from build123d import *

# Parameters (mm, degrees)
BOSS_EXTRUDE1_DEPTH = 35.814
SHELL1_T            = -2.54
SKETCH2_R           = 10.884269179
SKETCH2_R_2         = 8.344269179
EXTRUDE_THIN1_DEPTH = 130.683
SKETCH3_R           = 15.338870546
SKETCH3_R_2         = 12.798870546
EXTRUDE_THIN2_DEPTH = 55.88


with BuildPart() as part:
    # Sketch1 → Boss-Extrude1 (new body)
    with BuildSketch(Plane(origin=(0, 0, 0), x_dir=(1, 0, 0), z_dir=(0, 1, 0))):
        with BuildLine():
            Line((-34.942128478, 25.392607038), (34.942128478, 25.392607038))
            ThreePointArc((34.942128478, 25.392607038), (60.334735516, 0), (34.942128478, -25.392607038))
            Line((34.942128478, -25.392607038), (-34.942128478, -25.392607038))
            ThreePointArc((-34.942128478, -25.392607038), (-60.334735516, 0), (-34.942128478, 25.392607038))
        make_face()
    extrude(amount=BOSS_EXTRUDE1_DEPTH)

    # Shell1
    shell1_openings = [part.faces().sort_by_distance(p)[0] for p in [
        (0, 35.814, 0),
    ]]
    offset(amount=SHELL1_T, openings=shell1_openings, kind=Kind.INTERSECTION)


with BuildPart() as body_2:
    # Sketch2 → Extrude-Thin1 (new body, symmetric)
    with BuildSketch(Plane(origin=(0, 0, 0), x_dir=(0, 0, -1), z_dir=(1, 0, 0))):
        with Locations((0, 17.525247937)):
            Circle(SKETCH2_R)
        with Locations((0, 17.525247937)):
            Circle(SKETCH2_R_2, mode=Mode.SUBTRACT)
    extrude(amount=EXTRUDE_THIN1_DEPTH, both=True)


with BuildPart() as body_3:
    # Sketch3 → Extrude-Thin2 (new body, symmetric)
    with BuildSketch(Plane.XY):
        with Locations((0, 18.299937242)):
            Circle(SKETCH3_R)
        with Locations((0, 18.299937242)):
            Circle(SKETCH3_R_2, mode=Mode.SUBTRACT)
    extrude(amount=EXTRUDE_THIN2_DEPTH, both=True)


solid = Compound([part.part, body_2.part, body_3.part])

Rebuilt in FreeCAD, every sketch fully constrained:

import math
import FreeCAD as App
import Part
import Sketcher

V = App.Vector


def faces_at(feature, points):
    """Names of the faces that lie closest to the given points."""
    faces = feature.Shape.Faces
    near = lambda p: min(range(len(faces)), key=lambda i: faces[i].distToShape(Part.Vertex(*p))[0])
    return sorted({f"Face{near(p) + 1}" for p in points})

doc = App.newDocument("Part")
params = doc.addObject("Spreadsheet::Sheet", "Params")
for row, (alias, value) in enumerate([
    ("pad1_length", "1.41 in"),
    ("thickness_wall", "0.1 in"),
    ("pad2_length", "10.29 in"),
    ("pad3_length", "4.4 in"),
], start=1):
    params.set(f"A{row}", alias)
    params.set(f"B{row}", "=" + value)
    params.setAlias(f"B{row}", alias)

body = doc.addObject("PartDesign::Body", "Body")

# Sketch on XZ plane
sketch1 = body.newObject("Sketcher::SketchObject", "Sketch")
sketch1.AttachmentSupport = (doc.getObject("XZ_Plane"), [""])
sketch1.MapMode = "FlatFace"
sketch1.addGeometry([
    Part.LineSegment(V(35, -25, 0), V(-35, -25, 0)),
    Part.ArcOfCircle(Part.Circle(V(-35, 0, 0), V(0, 0, 1), 25), math.radians(90), math.radians(270)),
    Part.LineSegment(V(-35, 25, 0), V(35, 25, 0)),
    Part.ArcOfCircle(Part.Circle(V(35, 0, 0), V(0, 0, 1), 25), math.radians(-90), math.radians(90)),
], False)
sketch1.addConstraint([
    Sketcher.Constraint("Tangent", 0, 2, 1, 2),
    Sketcher.Constraint("Tangent", 1, 1, 2, 1),
    Sketcher.Constraint("Tangent", 2, 2, 3, 2),
    Sketcher.Constraint("Tangent", 3, 1, 0, 1),
    Sketcher.Constraint("Horizontal", 0),
    Sketcher.Constraint("Horizontal", 2),
    Sketcher.Constraint("Symmetric", 1, 3, 3, 3, -1, 1),
    Sketcher.Constraint("Radius", 1, 25.392607),
    Sketcher.Constraint("DistanceX", 0, 2, 0, 1, 69.884257),
])
pad1 = body.newObject("PartDesign::Pad", "Pad")
pad1.Profile = sketch1
pad1.setExpression("Length", "Params.pad1_length")
pad1.Reversed = True
doc.recompute()

thickness = body.newObject("PartDesign::Thickness", "Thickness")
thickness.Base = (pad1, faces_at(pad1, [(0, 35.814, 0)]))
thickness.setExpression("Value", "Params.thickness_wall")
thickness.Reversed = True
thickness.Join = "Intersection"
body2 = doc.addObject("PartDesign::Body", "Body001")

# Sketch on YZ plane
sketch2 = body2.newObject("Sketcher::SketchObject", "Sketch001")
sketch2.AttachmentSupport = (doc.getObject("YZ_Plane001"), [""])
sketch2.MapMode = "FlatFace"
sketch2.addGeometry([
    Part.Circle(V(18, 0, 0), V(0, 0, 1), 11),
    Part.Circle(V(18, 0, 0), V(0, 0, 1), 8),
], False)
sketch2.addConstraint([
    Sketcher.Constraint("Coincident", 1, 3, 0, 3),
    Sketcher.Constraint("PointOnObject", 0, 3, -1),
    Sketcher.Constraint("Diameter", 0, 21.768538),
    Sketcher.Constraint("Diameter", 1, 16.688538),
    Sketcher.Constraint("DistanceX", -1, 1, 0, 3, 17.525248),
])
pad2 = body2.newObject("PartDesign::Pad", "Pad001")
pad2.Profile = sketch2
pad2.setExpression("Length", "Params.pad2_length")
pad2.Midplane = True
body3 = doc.addObject("PartDesign::Body", "Body002")

# Sketch on XY plane
sketch3 = body3.newObject("Sketcher::SketchObject", "Sketch002")
sketch3.AttachmentSupport = (doc.getObject("XY_Plane002"), [""])
sketch3.MapMode = "FlatFace"
sketch3.addGeometry([
    Part.Circle(V(0, 18, 0), V(0, 0, 1), 15),
    Part.Circle(V(0, 18, 0), V(0, 0, 1), 13),
], False)
sketch3.addConstraint([
    Sketcher.Constraint("Coincident", 1, 3, 0, 3),
    Sketcher.Constraint("PointOnObject", 0, 3, -2),
    Sketcher.Constraint("Diameter", 0, 30.677741),
    Sketcher.Constraint("Diameter", 1, 25.597741),
    Sketcher.Constraint("DistanceY", -1, 1, 0, 3, 18.299937),
])
pad3 = body3.newObject("PartDesign::Pad", "Pad002")
pad3.Profile = sketch3
pad3.setExpression("Length", "Params.pad3_length")
pad3.Midplane = True

doc.recompute()
